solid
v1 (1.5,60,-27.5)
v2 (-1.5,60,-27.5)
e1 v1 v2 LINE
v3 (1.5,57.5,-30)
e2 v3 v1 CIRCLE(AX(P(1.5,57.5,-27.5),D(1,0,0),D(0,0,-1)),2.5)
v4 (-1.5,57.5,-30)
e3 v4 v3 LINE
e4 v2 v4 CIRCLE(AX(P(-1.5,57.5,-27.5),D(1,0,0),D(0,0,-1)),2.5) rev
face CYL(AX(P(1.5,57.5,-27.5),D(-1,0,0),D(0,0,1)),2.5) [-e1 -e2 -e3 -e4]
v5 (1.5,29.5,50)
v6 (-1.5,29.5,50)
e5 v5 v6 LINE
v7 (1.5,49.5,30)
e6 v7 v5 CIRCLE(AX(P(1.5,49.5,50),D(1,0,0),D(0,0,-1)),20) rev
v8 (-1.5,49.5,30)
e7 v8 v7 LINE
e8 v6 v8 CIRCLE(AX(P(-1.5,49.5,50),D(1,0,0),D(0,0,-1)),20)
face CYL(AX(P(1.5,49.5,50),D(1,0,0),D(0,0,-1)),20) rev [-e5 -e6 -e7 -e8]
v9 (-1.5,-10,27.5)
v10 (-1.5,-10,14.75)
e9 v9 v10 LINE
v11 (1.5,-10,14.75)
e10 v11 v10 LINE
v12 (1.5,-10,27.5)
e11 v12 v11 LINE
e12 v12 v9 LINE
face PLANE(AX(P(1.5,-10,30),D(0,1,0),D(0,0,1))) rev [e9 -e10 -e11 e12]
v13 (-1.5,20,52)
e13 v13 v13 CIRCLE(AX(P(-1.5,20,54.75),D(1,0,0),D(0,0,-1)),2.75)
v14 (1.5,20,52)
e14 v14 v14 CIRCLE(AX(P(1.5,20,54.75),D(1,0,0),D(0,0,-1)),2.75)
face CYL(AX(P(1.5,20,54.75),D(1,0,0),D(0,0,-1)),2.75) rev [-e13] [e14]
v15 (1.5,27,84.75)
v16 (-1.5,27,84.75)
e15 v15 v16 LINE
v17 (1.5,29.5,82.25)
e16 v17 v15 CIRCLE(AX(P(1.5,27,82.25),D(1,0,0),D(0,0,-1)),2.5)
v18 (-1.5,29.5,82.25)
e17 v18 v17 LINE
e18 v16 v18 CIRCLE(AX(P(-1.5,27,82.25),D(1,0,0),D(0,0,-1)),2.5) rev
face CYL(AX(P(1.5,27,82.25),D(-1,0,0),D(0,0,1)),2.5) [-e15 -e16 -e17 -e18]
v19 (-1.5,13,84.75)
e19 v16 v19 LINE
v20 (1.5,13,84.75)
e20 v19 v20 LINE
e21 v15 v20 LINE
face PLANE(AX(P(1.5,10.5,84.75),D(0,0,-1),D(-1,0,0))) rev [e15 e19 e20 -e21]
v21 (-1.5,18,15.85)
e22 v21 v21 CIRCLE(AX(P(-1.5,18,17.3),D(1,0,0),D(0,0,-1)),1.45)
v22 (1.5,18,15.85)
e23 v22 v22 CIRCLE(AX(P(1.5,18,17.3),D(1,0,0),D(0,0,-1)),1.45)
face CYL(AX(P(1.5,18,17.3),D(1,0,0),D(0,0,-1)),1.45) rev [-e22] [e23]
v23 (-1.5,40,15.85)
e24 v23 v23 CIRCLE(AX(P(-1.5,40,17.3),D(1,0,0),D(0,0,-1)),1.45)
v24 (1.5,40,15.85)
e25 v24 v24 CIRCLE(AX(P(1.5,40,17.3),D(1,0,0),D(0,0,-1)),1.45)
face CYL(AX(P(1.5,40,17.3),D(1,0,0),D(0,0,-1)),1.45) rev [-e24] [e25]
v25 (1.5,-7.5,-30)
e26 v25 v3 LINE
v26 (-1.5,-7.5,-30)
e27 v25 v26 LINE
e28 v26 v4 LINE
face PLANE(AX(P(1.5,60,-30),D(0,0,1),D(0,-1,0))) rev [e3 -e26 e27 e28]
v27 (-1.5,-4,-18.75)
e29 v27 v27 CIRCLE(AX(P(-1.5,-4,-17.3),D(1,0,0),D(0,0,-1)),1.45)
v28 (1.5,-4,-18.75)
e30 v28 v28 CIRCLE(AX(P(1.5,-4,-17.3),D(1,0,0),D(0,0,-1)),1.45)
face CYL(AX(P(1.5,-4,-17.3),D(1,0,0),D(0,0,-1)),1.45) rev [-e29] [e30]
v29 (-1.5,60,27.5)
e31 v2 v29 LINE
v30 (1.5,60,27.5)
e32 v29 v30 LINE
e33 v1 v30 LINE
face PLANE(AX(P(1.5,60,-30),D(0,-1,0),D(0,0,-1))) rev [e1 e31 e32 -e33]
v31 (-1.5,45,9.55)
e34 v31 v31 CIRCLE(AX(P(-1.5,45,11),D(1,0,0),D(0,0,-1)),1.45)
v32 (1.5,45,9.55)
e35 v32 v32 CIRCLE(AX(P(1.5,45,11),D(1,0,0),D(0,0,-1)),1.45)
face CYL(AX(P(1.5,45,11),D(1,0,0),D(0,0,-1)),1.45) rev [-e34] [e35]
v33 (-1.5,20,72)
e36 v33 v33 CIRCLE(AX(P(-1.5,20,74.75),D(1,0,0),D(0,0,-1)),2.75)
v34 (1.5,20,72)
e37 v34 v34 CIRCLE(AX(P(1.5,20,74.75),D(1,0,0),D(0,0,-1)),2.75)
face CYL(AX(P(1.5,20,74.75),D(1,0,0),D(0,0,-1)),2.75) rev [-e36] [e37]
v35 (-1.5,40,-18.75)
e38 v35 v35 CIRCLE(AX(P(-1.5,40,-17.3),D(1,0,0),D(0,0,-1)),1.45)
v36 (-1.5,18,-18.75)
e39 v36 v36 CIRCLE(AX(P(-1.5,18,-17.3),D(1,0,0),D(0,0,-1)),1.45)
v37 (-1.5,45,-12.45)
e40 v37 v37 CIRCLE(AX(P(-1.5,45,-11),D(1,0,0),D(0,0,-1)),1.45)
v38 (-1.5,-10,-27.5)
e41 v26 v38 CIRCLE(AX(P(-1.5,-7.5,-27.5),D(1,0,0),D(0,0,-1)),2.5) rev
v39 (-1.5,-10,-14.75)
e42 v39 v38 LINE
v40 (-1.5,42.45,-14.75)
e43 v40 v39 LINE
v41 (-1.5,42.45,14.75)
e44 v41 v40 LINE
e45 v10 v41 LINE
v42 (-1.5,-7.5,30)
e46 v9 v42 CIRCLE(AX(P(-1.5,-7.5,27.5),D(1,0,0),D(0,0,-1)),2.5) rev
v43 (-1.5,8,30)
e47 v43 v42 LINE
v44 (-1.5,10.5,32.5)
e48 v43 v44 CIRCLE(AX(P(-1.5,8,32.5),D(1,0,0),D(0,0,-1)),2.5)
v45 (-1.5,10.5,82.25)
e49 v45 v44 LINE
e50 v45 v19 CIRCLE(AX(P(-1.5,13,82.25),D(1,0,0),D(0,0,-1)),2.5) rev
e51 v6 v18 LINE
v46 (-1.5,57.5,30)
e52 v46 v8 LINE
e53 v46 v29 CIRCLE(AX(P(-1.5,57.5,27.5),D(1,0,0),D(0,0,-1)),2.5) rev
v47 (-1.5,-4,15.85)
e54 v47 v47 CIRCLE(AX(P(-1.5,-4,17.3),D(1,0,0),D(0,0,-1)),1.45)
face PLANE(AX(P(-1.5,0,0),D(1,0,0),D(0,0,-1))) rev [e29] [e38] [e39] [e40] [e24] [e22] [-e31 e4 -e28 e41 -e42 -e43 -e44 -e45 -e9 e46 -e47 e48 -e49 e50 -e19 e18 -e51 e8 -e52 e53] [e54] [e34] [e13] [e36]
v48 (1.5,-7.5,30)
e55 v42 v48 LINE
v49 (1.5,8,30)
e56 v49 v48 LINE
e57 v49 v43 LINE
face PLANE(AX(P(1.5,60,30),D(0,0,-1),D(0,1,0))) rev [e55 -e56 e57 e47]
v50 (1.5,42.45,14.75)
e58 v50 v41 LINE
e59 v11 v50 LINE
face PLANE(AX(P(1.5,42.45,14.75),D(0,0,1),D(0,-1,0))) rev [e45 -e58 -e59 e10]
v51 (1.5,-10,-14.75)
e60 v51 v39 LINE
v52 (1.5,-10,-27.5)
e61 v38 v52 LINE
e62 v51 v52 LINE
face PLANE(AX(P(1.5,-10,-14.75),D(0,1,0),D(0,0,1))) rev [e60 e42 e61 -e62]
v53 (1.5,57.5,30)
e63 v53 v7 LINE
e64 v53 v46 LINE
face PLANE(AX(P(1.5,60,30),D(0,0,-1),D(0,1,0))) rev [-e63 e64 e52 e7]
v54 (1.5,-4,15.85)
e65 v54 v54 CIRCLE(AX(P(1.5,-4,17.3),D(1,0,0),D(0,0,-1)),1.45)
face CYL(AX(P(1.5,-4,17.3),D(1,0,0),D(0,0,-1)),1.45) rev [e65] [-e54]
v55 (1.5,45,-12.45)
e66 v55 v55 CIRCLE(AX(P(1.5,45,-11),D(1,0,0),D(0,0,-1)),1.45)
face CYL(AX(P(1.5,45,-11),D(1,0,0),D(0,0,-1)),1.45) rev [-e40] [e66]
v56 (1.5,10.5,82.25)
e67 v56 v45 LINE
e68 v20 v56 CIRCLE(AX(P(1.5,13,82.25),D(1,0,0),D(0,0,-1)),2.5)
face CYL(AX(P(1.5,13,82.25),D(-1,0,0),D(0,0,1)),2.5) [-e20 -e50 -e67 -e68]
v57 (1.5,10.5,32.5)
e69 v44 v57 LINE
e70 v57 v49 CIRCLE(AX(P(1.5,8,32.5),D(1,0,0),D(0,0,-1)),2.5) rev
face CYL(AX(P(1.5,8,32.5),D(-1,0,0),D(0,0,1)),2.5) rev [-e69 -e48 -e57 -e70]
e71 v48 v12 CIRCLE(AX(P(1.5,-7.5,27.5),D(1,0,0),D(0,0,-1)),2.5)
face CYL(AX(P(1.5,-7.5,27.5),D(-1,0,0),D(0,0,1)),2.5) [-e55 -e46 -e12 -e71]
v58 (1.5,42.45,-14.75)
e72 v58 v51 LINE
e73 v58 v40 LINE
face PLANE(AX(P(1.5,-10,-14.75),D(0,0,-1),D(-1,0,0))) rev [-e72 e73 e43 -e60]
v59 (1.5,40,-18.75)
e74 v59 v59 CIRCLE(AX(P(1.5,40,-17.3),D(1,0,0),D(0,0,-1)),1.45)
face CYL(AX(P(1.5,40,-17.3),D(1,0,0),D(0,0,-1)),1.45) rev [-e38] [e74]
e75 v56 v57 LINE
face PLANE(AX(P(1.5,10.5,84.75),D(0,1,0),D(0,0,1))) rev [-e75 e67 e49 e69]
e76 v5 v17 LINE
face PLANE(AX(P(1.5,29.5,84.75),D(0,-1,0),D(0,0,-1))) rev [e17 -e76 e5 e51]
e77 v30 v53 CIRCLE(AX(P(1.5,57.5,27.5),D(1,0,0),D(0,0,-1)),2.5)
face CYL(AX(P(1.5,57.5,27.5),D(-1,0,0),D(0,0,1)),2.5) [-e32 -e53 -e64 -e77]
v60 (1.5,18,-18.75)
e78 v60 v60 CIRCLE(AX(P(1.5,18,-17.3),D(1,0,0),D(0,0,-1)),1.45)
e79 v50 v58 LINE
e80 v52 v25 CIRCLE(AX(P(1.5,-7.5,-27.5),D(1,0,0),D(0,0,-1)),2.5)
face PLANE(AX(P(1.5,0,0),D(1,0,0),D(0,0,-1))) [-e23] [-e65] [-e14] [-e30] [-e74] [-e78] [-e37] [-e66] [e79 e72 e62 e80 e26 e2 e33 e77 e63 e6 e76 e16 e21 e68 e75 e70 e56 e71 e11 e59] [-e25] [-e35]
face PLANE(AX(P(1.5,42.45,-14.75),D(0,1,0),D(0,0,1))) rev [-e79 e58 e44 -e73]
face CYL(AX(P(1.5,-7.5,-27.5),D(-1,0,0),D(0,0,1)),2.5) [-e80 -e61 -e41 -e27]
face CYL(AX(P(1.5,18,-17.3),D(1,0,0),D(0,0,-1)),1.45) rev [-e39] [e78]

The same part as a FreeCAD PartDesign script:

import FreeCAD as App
import Part
import Sketcher

V = App.Vector
Q = App.Units.Quantity


def edges_at(feature, points):
    """Names of the edges that pass closest to the given points."""
    edges = feature.Shape.Edges
    near = lambda p: min(range(len(edges)), key=lambda i: edges[i].distToShape(Part.Vertex(*p))[0])
    return sorted({f"Edge{near(p) + 1}" for p in points})

doc = App.newDocument("Part")
body = doc.addObject("PartDesign::Body", "Body")

# Sketch on YZ plane
sketch1 = body.newObject("Sketcher::SketchObject", "Sketch")
sketch1.AttachmentSupport = (doc.getObject("YZ_Plane"), [""])
sketch1.MapMode = "FlatFace"
sketch1.addGeometry([
    Part.LineSegment(V(60, -30, 0), V(60, 30, 0)),  # 0
    Part.LineSegment(V(60, 30, 0), V(-10, 30, 0)),  # 1
    Part.LineSegment(V(-10, 30, 0), V(-10, 15, 0)),  # 2
    Part.LineSegment(V(-10, 15, 0), V(42, 15, 0)),  # 3
    Part.LineSegment(V(42, 15, 0), V(42, -15, 0)),  # 4
    Part.LineSegment(V(42, -15, 0), V(-10, -15, 0)),  # 5
    Part.LineSegment(V(-10, -15, 0), V(-10, -30, 0)),  # 6
    Part.LineSegment(V(-10, -30, 0), V(60, -30, 0)),  # 7
], False)
sketch1.addConstraint([
    Sketcher.Constraint("Coincident", 0, 2, 1, 1),
    Sketcher.Constraint("Coincident", 1, 2, 2, 1),
    Sketcher.Constraint("Coincident", 2, 2, 3, 1),
    Sketcher.Constraint("Coincident", 3, 2, 4, 1),
    Sketcher.Constraint("Coincident", 4, 2, 5, 1),
    Sketcher.Constraint("Coincident", 5, 2, 6, 1),
    Sketcher.Constraint("Coincident", 6, 2, 7, 1),
    Sketcher.Constraint("Coincident", 7, 2, 0, 1),
    Sketcher.Constraint("Vertical", 0),
    Sketcher.Constraint("Horizontal", 1),
    Sketcher.Constraint("Vertical", 2),
    Sketcher.Constraint("Horizontal", 3),
    Sketcher.Constraint("Vertical", 4),
    Sketcher.Constraint("Horizontal", 5),
    Sketcher.Constraint("Vertical", 6),
    Sketcher.Constraint("Horizontal", 7),
    Sketcher.Constraint("Symmetric", 2, 2, 5, 2, -1),
    Sketcher.Constraint("Equal", 2, 6),
    Sketcher.Constraint("DistanceX", 1, 2, 1, 1, Q("70 mm")),
    Sketcher.Constraint("DistanceY", 0, 1, 0, 2, Q("60 mm")),
    Sketcher.Constraint("DistanceY", 4, 2, 4, 1, Q("29.5 mm")),
    Sketcher.Constraint("DistanceX", -1, 1, 0, 2, Q("60 mm")),
    Sketcher.Constraint("DistanceX", 3, 1, 3, 2, Q("52.45 mm")),
])
pad1 = body.newObject("PartDesign::Pad", "Pad")
pad1.Profile = sketch1
pad1.Length = 3
pad1.Midplane = True

# Sketch on YZ plane
sketch2 = body.newObject("Sketcher::SketchObject", "Sketch001")
sketch2.AttachmentSupport = (doc.getObject("YZ_Plane"), [""])
sketch2.MapMode = "FlatFace"
sketch2.addGeometry([
    Part.LineSegment(V(30, 85, 0), V(10, 85, 0)),
    Part.LineSegment(V(10, 85, 0), V(10, 15, 0)),
    Part.LineSegment(V(10, 15, 0), V(30, 15, 0)),
    Part.LineSegment(V(30, 15, 0), V(30, 85, 0)),
], False)
sketch2.addConstraint([
    Sketcher.Constraint("Coincident", 0, 2, 1, 1),
    Sketcher.Constraint("Coincident", 1, 2, 2, 1),
    Sketcher.Constraint("Coincident", 2, 2, 3, 1),
    Sketcher.Constraint("Coincident", 3, 2, 0, 1),
    Sketcher.Constraint("Horizontal", 0),
    Sketcher.Constraint("Vertical", 1),
    Sketcher.Constraint("Horizontal", 2),
    Sketcher.Constraint("Vertical", 3),
    Sketcher.Constraint("DistanceX", 0, 2, 0, 1, Q("19 mm")),
    Sketcher.Constraint("DistanceY", 1, 2, 1, 1, Q("70 mm")),
    Sketcher.Constraint("DistanceX", -1, 1, 0, 2, Q("10.5 mm")),
    Sketcher.Constraint("DistanceY", -1, 1, 0, 2, Q("84.75 mm")),
])
pad2 = body.newObject("PartDesign::Pad", "Pad001")
pad2.Profile = sketch2
pad2.Length = 3
pad2.Midplane = True

# Sketch on YZ plane
sketch3 = body.newObject("Sketcher::SketchObject", "Sketch002")
sketch3.AttachmentSupport = (doc.getObject("YZ_Plane"), [""])
sketch3.MapMode = "FlatFace"
sketch3.AttachmentOffset = App.Placement(V(0, 0, 1.5), App.Rotation())
sketch3.addGeometry([
    Part.Circle(V(20, 74.8, 0), V(0, 0, 1), 2.8),
    Part.Circle(V(20, 54.8, 0), V(0, 0, 1), 2.8),
], False)
sketch3.addConstraint([
    Sketcher.Constraint("Equal", 0, 1),
    Sketcher.Constraint("Vertical", 0, 3, 1, 3),
    Sketcher.Constraint("Diameter", 0, Q("5.5 mm")),
    Sketcher.Constraint("DistanceX", -1, 1, 0, 3, Q("20 mm")),
    Sketcher.Constraint("DistanceY", 1, 3, 0, 3, Q("20 mm")),
    Sketcher.Constraint("DistanceY", -1, 1, 0, 3, Q("74.75 mm")),
])
doc.recompute()
hole = body.newObject("PartDesign::Hole", "Hole")
hole.Profile = sketch3
hole.ThreadType = "None"
hole.Diameter = 5.5
hole.DepthType = "ThroughAll"
doc.recompute()

fillet = body.newObject("PartDesign::Fillet", "Fillet")
fillet.Base = (hole, edges_at(hole, [(0, 10.5, 84.75), (0, 29.5, 84.75)]))
fillet.Radius = 2.5
doc.recompute()

fillet2 = body.newObject("PartDesign::Fillet", "Fillet001")
fillet2.Base = (fillet, edges_at(fillet, [
    (0, -10, -30),
    (0, -10, 30),
    (0, 60, 30),
    (0, 60, -30),
    (0, 10.5, 30),
]))
fillet2.Radius = 2.5

# Sketch on YZ plane
sketch4 = body.newObject("Sketcher::SketchObject", "Sketch003")
sketch4.AttachmentSupport = (doc.getObject("YZ_Plane"), [""])
sketch4.MapMode = "FlatFace"
sketch4.AttachmentOffset = App.Placement(V(0, 0, 1.5), App.Rotation())
sketch4.addGeometry([
    Part.Circle(V(40, -17.3, 0), V(0, 0, 1), 1.4),  # 0
    Part.Circle(V(74.7, -79.7, 0), V(0, 0, 1), 1.4),  # 1
    Part.Circle(V(18, -17.3, 0), V(0, 0, 1), 1.4),  # 2
    Part.Circle(V(-4, -17.3, 0), V(0, 0, 1), 1.4),  # 3
    Part.Circle(V(-4, 17.3, 0), V(0, 0, 1), 1.4),  # 4
    Part.Circle(V(18, 17.3, 0), V(0, 0, 1), 1.4),  # 5
    Part.Circle(V(40, 17.3, 0), V(0, 0, 1), 1.4),  # 6
    Part.Circle(V(45, 11, 0), V(0, 0, 1), 1.4),  # 7
    Part.Circle(V(45, -11, 0), V(0, 0, 1), 1.4),  # 8
], False)
sketch4.addConstraint([
    Sketcher.Constraint("Equal", 0, 1),
    Sketcher.Constraint("Equal", 1, 2),
    Sketcher.Constraint("Equal", 2, 3),
    Sketcher.Constraint("Equal", 3, 4),
    Sketcher.Constraint("Equal", 4, 5),
    Sketcher.Constraint("Equal", 5, 6),
    Sketcher.Constraint("Equal", 6, 7),
    Sketcher.Constraint("Equal", 7, 8),
    Sketcher.Constraint("Symmetric", 3, 3, 4, 3, -1),
    Sketcher.Constraint("Symmetric", 2, 3, 5, 3, -1),
    Sketcher.Constraint("Symmetric", 0, 3, 6, 3, -1),
    Sketcher.Constraint("Symmetric", 7, 3, 8, 3, -1),
    Sketcher.Constraint("Horizontal", 0, 3, 2, 3),
    Sketcher.Constraint("Horizontal", 2, 3, 3, 3),
    Sketcher.Constraint("Diameter", 0, Q("2.9 mm")),
    Sketcher.Constraint("DistanceX", -1, 1, 0, 3, Q("40 mm")),
    Sketcher.Constraint("DistanceX", -1, 1, 2, 3, Q("18 mm")),
    Sketcher.Constraint("DistanceX", 3, 3, -1, 1, Q("4 mm")),
    Sketcher.Constraint("DistanceX", -1, 1, 7, 3, Q("45 mm")),
    Sketcher.Constraint("DistanceY", -1, 1, 7, 3, Q("11 mm")),
    Sketcher.Constraint("DistanceY", 0, 3, -1, 1, Q("17.3 mm")),
    Sketcher.Constraint("DistanceX", -1, 1, 1, 3, Q("74.743551 mm")),
    Sketcher.Constraint("DistanceY", 1, 3, -1, 1, Q("79.728332 mm")),
])
doc.recompute()
hole2 = body.newObject("PartDesign::Hole", "Hole001")
hole2.Profile = sketch4
hole2.ThreadType = "None"
hole2.Diameter = 2.9
hole2.DepthType = "Dimension"
hole2.Depth = 3
hole2.DrillPoint = "Flat"
doc.recompute()

fillet3 = body.newObject("PartDesign::Fillet", "Fillet002")
fillet3.Base = (hole2, edges_at(hole2, [(0, 29.5, 30)]))
fillet3.Radius = 20

doc.recompute()
